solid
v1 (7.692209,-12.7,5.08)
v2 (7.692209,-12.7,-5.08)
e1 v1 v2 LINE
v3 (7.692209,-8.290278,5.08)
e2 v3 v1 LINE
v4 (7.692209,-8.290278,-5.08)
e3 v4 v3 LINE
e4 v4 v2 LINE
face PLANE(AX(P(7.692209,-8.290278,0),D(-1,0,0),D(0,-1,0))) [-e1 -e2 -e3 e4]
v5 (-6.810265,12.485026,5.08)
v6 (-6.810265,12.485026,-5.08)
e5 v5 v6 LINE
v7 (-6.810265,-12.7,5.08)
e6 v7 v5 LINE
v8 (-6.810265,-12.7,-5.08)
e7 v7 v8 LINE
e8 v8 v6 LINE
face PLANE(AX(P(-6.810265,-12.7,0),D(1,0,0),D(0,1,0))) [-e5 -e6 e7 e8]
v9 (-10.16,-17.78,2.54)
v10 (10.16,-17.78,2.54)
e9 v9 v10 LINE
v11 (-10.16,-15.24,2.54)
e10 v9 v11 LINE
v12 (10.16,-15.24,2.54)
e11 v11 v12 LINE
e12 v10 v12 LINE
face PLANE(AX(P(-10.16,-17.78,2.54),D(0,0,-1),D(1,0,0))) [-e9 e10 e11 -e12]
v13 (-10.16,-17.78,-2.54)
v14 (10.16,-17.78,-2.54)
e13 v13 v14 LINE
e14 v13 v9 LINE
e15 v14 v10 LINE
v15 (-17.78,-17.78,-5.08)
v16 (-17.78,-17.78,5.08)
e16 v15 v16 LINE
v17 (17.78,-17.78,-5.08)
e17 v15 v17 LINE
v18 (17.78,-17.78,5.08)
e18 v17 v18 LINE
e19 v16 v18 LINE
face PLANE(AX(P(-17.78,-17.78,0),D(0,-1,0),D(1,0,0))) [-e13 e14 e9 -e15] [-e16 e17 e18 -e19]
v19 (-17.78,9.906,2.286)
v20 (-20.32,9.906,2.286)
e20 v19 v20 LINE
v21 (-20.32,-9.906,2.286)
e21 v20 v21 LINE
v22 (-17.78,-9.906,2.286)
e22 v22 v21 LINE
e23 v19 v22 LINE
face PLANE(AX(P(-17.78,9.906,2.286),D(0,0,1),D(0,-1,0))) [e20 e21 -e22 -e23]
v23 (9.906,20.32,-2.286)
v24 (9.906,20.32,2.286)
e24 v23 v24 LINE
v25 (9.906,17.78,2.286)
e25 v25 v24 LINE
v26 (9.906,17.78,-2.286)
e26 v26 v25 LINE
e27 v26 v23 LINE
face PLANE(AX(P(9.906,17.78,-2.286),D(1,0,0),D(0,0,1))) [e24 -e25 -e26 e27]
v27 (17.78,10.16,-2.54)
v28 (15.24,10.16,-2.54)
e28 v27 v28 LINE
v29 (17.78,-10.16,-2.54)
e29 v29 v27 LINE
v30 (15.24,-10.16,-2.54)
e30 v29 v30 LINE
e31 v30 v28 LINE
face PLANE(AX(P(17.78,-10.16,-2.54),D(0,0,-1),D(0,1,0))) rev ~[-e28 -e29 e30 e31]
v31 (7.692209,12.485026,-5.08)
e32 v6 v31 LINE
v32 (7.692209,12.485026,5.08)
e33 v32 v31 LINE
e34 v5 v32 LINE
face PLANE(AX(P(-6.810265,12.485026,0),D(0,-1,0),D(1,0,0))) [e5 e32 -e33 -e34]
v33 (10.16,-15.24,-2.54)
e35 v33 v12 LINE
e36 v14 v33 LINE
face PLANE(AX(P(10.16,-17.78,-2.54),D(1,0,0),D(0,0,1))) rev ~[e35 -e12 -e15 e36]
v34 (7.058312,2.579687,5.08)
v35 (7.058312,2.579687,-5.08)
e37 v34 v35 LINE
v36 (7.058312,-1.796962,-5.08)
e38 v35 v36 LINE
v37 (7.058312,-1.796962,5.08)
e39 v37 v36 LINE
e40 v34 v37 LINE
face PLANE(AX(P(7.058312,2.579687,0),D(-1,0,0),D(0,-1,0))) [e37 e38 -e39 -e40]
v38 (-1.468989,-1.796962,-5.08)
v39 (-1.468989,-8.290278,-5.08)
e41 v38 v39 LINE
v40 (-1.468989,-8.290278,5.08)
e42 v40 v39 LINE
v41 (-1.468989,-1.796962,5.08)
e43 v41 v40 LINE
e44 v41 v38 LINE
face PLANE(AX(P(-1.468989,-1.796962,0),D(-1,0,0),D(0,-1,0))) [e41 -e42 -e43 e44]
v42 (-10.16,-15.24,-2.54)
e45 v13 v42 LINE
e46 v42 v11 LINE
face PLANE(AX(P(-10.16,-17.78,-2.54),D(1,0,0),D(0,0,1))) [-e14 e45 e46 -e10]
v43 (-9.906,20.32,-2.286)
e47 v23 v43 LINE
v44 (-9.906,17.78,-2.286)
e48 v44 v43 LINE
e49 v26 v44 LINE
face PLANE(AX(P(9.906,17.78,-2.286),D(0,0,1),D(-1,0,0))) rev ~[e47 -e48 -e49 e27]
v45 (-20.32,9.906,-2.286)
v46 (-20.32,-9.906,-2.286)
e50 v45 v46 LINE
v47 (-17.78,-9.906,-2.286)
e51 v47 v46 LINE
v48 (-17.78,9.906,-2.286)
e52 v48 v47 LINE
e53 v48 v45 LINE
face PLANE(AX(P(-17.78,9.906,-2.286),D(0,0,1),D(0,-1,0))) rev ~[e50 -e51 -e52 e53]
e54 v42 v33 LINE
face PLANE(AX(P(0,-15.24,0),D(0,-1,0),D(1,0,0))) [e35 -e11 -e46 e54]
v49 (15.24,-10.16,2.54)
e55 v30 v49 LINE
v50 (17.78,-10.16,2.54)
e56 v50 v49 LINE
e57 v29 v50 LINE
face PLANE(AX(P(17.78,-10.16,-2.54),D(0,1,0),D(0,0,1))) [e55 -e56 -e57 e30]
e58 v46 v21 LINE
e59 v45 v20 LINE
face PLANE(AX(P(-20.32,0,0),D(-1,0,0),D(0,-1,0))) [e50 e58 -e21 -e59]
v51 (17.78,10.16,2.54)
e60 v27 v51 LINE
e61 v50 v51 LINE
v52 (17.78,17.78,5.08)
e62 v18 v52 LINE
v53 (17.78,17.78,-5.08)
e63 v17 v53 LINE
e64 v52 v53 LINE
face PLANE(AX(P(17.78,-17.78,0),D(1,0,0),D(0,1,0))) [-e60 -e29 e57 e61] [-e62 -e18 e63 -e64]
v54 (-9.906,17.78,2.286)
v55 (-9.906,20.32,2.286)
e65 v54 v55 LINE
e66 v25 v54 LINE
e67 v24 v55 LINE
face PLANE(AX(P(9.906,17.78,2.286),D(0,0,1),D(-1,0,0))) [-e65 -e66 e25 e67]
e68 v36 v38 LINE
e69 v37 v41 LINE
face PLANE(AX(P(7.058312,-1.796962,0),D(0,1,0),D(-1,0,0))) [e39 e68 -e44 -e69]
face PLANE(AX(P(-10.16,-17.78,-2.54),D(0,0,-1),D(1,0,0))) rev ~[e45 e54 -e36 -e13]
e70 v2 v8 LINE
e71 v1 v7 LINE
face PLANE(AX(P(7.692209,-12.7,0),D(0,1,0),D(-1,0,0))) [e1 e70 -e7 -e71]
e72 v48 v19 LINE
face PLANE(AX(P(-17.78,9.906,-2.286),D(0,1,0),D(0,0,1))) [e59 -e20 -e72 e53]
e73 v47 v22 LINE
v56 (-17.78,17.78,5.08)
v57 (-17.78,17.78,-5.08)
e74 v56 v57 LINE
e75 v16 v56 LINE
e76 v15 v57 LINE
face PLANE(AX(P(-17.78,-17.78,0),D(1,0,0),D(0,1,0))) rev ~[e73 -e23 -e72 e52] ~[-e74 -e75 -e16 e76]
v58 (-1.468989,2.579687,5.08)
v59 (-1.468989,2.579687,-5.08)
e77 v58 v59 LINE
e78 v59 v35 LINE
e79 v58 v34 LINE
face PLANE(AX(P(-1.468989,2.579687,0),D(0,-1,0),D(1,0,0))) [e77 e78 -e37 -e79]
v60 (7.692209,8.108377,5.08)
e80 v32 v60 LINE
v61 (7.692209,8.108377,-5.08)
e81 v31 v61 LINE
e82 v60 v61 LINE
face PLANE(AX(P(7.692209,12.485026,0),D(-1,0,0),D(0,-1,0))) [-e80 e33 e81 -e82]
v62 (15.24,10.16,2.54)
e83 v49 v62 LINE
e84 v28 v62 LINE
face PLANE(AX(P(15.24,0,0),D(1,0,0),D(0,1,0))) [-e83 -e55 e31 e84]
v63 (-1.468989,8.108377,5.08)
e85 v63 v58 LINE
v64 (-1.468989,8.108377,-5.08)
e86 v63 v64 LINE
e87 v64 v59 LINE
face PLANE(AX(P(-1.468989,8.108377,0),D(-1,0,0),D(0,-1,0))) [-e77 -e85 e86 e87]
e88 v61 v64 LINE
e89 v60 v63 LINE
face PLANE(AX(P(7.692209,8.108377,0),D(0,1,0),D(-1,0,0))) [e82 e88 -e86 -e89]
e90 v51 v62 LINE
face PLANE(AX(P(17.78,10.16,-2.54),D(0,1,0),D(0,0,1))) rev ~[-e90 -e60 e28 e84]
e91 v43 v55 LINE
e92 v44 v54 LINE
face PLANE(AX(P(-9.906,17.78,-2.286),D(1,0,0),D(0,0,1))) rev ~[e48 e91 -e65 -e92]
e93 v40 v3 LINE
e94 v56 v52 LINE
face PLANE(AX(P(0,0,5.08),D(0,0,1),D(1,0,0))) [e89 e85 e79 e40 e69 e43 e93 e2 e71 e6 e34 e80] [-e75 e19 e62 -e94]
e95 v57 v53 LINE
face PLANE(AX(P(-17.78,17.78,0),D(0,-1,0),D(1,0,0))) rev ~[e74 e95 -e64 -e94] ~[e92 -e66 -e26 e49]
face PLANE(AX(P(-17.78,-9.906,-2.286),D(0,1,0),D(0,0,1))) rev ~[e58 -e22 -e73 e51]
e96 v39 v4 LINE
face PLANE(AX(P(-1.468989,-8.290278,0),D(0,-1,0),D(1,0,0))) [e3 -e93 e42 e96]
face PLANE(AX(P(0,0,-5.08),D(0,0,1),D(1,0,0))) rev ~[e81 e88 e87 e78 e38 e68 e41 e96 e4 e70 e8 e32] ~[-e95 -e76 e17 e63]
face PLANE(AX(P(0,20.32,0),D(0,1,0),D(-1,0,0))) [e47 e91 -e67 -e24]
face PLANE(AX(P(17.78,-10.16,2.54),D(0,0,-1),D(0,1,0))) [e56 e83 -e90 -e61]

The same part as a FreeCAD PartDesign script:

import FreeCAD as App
import Part
import Sketcher

V = App.Vector
Q = App.Units.Quantity

doc = App.newDocument("Part")
body = doc.addObject("PartDesign::Body", "Body")

sketch1 = body.newObject("Sketcher::SketchObject", "Sketch")
sketch1.AttachmentSupport = (doc.getObject("XY_Plane"), [""])
sketch1.MapMode = "FlatFace"
sketch1.addGeometry([
    Part.LineSegment(V(-17.8, 17.8, 0), V(-17.8, -17.8, 0)),
    Part.LineSegment(V(-17.8, -17.8, 0), V(17.8, -17.8, 0)),
    Part.LineSegment(V(17.8, -17.8, 0), V(17.8, 17.8, 0)),
    Part.LineSegment(V(17.8, 17.8, 0), V(-17.8, 17.8, 0)),
    Part.LineSegment(V(-1.5, -8.3, 0), V(7.7, -8.3, 0)),
    Part.LineSegment(V(7.7, -8.3, 0), V(7.7, -12.7, 0)),
    Part.LineSegment(V(7.7, -12.7, 0), V(-6.8, -12.7, 0)),
    Part.LineSegment(V(-6.8, -12.7, 0), V(-6.8, 12.5, 0)),
    Part.LineSegment(V(-6.8, 12.5, 0), V(7.7, 12.5, 0)),
    Part.LineSegment(V(7.7, 12.5, 0), V(7.7, 8.1, 0)),
    Part.LineSegment(V(7.7, 8.1, 0), V(-1.5, 8.1, 0)),
    Part.LineSegment(V(-1.5, 8.1, 0), V(-1.5, 2.6, 0)),
    Part.LineSegment(V(-1.5, 2.6, 0), V(7.1, 2.6, 0)),
    Part.LineSegment(V(7.1, 2.6, 0), V(7.1, -1.8, 0)),
    Part.LineSegment(V(7.1, -1.8, 0), V(-1.5, -1.8, 0)),
    Part.LineSegment(V(-1.5, -1.8, 0), V(-1.5, -8.3, 0)),
], False)
sketch1.addConstraint([
    Sketcher.Constraint("Coincident", 0, 2, 1, 1),
    Sketcher.Constraint("Coincident", 1, 2, 2, 1),
    Sketcher.Constraint("Coincident", 2, 2, 3, 1),
    Sketcher.Constraint("Coincident", 3, 2, 0, 1),
    Sketcher.Constraint("Coincident", 4, 2, 5, 1),
    Sketcher.Constraint("Coincident", 5, 2, 6, 1),
    Sketcher.Constraint("Coincident", 6, 2, 7, 1),
    Sketcher.Constraint("Coincident", 7, 2, 8, 1),
    Sketcher.Constraint("Coincident", 8, 2, 9, 1),
    Sketcher.Constraint("Coincident", 9, 2, 10, 1),
    Sketcher.Constraint("Coincident", 10, 2, 11, 1),
    Sketcher.Constraint("Coincident", 11, 2, 12, 1),
    Sketcher.Constraint("Coincident", 12, 2, 13, 1),
    Sketcher.Constraint("Coincident", 13, 2, 14, 1),
    Sketcher.Constraint("Coincident", 14, 2, 15, 1),
    Sketcher.Constraint("Coincident", 15, 2, 4, 1),
    Sketcher.Constraint("Vertical", 0),
    Sketcher.Constraint("Horizontal", 1),
    Sketcher.Constraint("Vertical", 2),
    Sketcher.Constraint("Horizontal", 3),
    Sketcher.Constraint("Horizontal", 4),
    Sketcher.Constraint("Vertical", 5),
    Sketcher.Constraint("Horizontal", 6),
    Sketcher.Constraint("Vertical", 7),
    Sketcher.Constraint("Horizontal", 8),
    Sketcher.Constraint("Vertical", 9),
    Sketcher.Constraint("Horizontal", 10),
    Sketcher.Constraint("Vertical", 11),
    Sketcher.Constraint("Horizontal", 12),
    Sketcher.Constraint("Vertical", 13),
    Sketcher.Constraint("Horizontal", 14),
    Sketcher.Constraint("Vertical", 15),
    Sketcher.Constraint("Symmetric", 0, 2, 2, 2, -1, 1),
    Sketcher.Constraint("Vertical", 5, 2, 8, 2),
    Sketcher.Constraint("Vertical", 11, 2, 14, 2),
    Sketcher.Constraint("Equal", 3, 0),
    Sketcher.Constraint("Equal", 9, 13),
    Sketcher.Constraint("DistanceX", 1, 1, 1, 2, Q("1.4 in")),
    Sketcher.Constraint("DistanceY", 5, 2, -1, 1, Q("0.5 in")),
    Sketcher.Constraint("DistanceX", 12, 1, 12, 2, Q("8.5273 mm")),
    Sketcher.Constraint("DistanceY", 9, 2, 9, 1, Q("4.376649 mm")),
    Sketcher.Constraint("DistanceY", 11, 2, 11, 1, Q("5.528689 mm")),
    Sketcher.Constraint("DistanceX", 4, 1, 4, 2, Q("9.161198 mm")),
    Sketcher.Constraint("DistanceX", 6, 2, 6, 1, Q("14.502474 mm")),
    Sketcher.Constraint("DistanceY", 5, 2, 5, 1, Q("4.409722 mm")),
    Sketcher.Constraint("DistanceY", 7, 1, 7, 2, Q("25.185026 mm")),
    Sketcher.Constraint("DistanceX", -1, 1, 4, 2, Q("7.692209 mm")),
])
pad1 = body.newObject("PartDesign::Pad", "Pad")
pad1.Profile = sketch1
pad1.Length = Q("0.4 in")
pad1.Midplane = True

sketch2 = body.newObject("Sketcher::SketchObject", "Sketch001")
sketch2.AttachmentSupport = (doc.getObject("XZ_Plane"), [""])
sketch2.MapMode = "FlatFace"
sketch2.AttachmentOffset = App.Placement(V(0, 0, -0.7 * 25.4), App.Rotation())
sketch2.addGeometry([
    Part.LineSegment(V(9.9, 2.3, 0), V(9.9, -2.3, 0)),
    Part.LineSegment(V(9.9, -2.3, 0), V(-9.9, -2.3, 0)),
    Part.LineSegment(V(-9.9, -2.3, 0), V(-9.9, 2.3, 0)),
    Part.LineSegment(V(-9.9, 2.3, 0), V(9.9, 2.3, 0)),
], False)
sketch2.addConstraint([
    Sketcher.Constraint("Coincident", 0, 2, 1, 1),
    Sketcher.Constraint("Coincident", 1, 2, 2, 1),
    Sketcher.Constraint("Coincident", 2, 2, 3, 1),
    Sketcher.Constraint("Coincident", 3, 2, 0, 1),
    Sketcher.Constraint("Vertical", 0),
    Sketcher.Constraint("Horizontal", 1),
    Sketcher.Constraint("Vertical", 2),
    Sketcher.Constraint("Horizontal", 3),
    Sketcher.Constraint("Symmetric", 0, 2, 2, 2, -1, 1),
    Sketcher.Constraint("DistanceX", 1, 2, 1, 1, Q("0.78 in")),
    Sketcher.Constraint("DistanceY", 0, 2, 0, 1, Q("0.18 in")),
])
pad2 = body.newObject("PartDesign::Pad", "Pad001")
pad2.Profile = sketch2
pad2.Length = Q("0.1 in")
pad2.Reversed = True

sketch3 = body.newObject("Sketcher::SketchObject", "Sketch002")
sketch3.AttachmentSupport = (doc.getObject("YZ_Plane"), [""])
sketch3.MapMode = "FlatFace"
sketch3.AttachmentOffset = App.Placement(V(0, 0, -0.7 * 25.4), App.Rotation())
sketch3.addGeometry([
    Part.LineSegment(V(9.9, 2.3, 0), V(9.9, -2.3, 0)),
    Part.LineSegment(V(9.9, -2.3, 0), V(-9.9, -2.3, 0)),
    Part.LineSegment(V(-9.9, -2.3, 0), V(-9.9, 2.3, 0)),
    Part.LineSegment(V(-9.9, 2.3, 0), V(9.9, 2.3, 0)),
], False)
sketch3.addConstraint([
    Sketcher.Constraint("Coincident", 0, 2, 1, 1),
    Sketcher.Constraint("Coincident", 1, 2, 2, 1),
    Sketcher.Constraint("Coincident", 2, 2, 3, 1),
    Sketcher.Constraint("Coincident", 3, 2, 0, 1),
    Sketcher.Constraint("Vertical", 0),
    Sketcher.Constraint("Horizontal", 1),
    Sketcher.Constraint("Vertical", 2),
    Sketcher.Constraint("Horizontal", 3),
    Sketcher.Constraint("Symmetric", 0, 2, 2, 2, -1, 1),
    Sketcher.Constraint("DistanceX", 1, 2, 1, 1, Q("0.78 in")),
    Sketcher.Constraint("DistanceY", 0, 2, 0, 1, Q("0.18 in")),
])
pad3 = body.newObject("PartDesign::Pad", "Pad002")
pad3.Profile = sketch3
pad3.Length = Q("0.1 in")
pad3.Reversed = True

sketch4 = body.newObject("Sketcher::SketchObject", "Sketch003")
sketch4.AttachmentSupport = (doc.getObject("XZ_Plane"), [""])
sketch4.MapMode = "FlatFace"
sketch4.AttachmentOffset = App.Placement(V(0, 0, 0.7 * 25.4), App.Rotation())
sketch4.addGeometry([
    Part.LineSegment(V(-10, 3, 0), V(-10, -3, 0)),
    Part.LineSegment(V(-10, -3, 0), V(10, -3, 0)),
    Part.LineSegment(V(10, -3, 0), V(10, 3, 0)),
    Part.LineSegment(V(10, 3, 0), V(-10, 3, 0)),
], False)
sketch4.addConstraint([
    Sketcher.Constraint("Coincident", 0, 2, 1, 1),
    Sketcher.Constraint("Coincident", 1, 2, 2, 1),
    Sketcher.Constraint("Coincident", 2, 2, 3, 1),
    Sketcher.Constraint("Coincident", 3, 2, 0, 1),
    Sketcher.Constraint("Vertical", 0),
    Sketcher.Constraint("Horizontal", 1),
    Sketcher.Constraint("Vertical", 2),
    Sketcher.Constraint("Horizontal", 3),
    Sketcher.Constraint("Symmetric", 0, 2, 2, 2, -1, 1),
    Sketcher.Constraint("DistanceX", 1, 1, 1, 2, Q("0.8 in")),
    Sketcher.Constraint("DistanceY", 0, 2, 0, 1, Q("0.2 in")),
])
pocket1 = body.newObject("PartDesign::Pocket", "Pocket")
pocket1.Profile = sketch4
pocket1.Length = Q("0.1 in")

sketch5 = body.newObject("Sketcher::SketchObject", "Sketch004")
sketch5.AttachmentSupport = (doc.getObject("YZ_Plane"), [""])
sketch5.MapMode = "FlatFace"
sketch5.AttachmentOffset = App.Placement(V(0, 0, 0.7 * 25.4), App.Rotation())
sketch5.addGeometry([
    Part.LineSegment(V(-10, 3, 0), V(-10, -3, 0)),
    Part.LineSegment(V(-10, -3, 0), V(10, -3, 0)),
    Part.LineSegment(V(10, -3, 0), V(10, 3, 0)),
    Part.LineSegment(V(10, 3, 0), V(-10, 3, 0)),
], False)
sketch5.addConstraint([
    Sketcher.Constraint("Coincident", 0, 2, 1, 1),
    Sketcher.Constraint("Coincident", 1, 2, 2, 1),
    Sketcher.Constraint("Coincident", 2, 2, 3, 1),
    Sketcher.Constraint("Coincident", 3, 2, 0, 1),
    Sketcher.Constraint("Vertical", 0),
    Sketcher.Constraint("Horizontal", 1),
    Sketcher.Constraint("Vertical", 2),
    Sketcher.Constraint("Horizontal", 3),
    Sketcher.Constraint("Symmetric", 0, 2, 2, 2, -1, 1),
    Sketcher.Constraint("DistanceX", 1, 1, 1, 2, Q("0.8 in")),
    Sketcher.Constraint("DistanceY", 0, 2, 0, 1, Q("0.2 in")),
])
pocket2 = body.newObject("PartDesign::Pocket", "Pocket001")
pocket2.Profile = sketch5
pocket2.Length = Q("0.1 in")

doc.recompute()
